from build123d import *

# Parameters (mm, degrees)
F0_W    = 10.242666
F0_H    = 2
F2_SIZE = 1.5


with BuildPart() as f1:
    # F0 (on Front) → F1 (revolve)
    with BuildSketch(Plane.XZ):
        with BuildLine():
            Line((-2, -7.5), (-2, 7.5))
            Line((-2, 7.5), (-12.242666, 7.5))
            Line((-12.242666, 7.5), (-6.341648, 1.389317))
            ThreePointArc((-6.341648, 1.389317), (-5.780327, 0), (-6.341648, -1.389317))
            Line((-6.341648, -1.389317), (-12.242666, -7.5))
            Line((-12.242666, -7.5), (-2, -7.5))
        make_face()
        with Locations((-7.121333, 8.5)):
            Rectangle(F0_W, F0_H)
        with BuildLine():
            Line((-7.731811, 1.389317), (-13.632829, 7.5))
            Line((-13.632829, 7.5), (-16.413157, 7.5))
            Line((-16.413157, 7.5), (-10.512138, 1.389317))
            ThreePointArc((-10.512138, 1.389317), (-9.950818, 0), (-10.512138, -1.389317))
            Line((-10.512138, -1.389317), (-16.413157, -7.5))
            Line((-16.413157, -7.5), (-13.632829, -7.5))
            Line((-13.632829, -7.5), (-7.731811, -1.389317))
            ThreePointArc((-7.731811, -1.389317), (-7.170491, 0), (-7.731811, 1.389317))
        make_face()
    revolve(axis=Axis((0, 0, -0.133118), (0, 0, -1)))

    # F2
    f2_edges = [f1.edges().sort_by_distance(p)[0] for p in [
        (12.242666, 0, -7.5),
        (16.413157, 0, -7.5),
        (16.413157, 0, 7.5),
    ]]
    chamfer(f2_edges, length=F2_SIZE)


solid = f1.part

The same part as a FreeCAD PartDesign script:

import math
import FreeCAD as App
import Part
import Sketcher
from FreeCAD import Vector
Q = App.Units.Quantity


def edges_at(feature, points):
    """Names of the edges that pass closest to the given points."""
    edges = feature.Shape.Edges
    near = lambda p: min(range(len(edges)), key=lambda i: edges[i].distToShape(Part.Vertex(*p))[0])
    return sorted({f"Edge{near(p) + 1}" for p in points})

doc = App.newDocument("Part")
body = doc.addObject("PartDesign::Body", "Body")
body.AllowCompound = True

# Sketch on XZ plane
sketch1 = body.newObject("Sketcher::SketchObject", "Sketch")
sketch1.AttachmentSupport = (doc.getObject("XZ_Plane"), [""])
sketch1.MapMode = "FlatFace"
sketch1.addGeometry(Part.LineSegment(Vector(-2, -7.5, 0), Vector(-2, 9.5, 0)), False)
sketch1.addGeometry(Part.LineSegment(Vector(-2, 9.5, 0), Vector(-12.2, 9.5, 0)), False)
sketch1.addGeometry(Part.LineSegment(Vector(-12.2, 9.5, 0), Vector(-12.2, 7.5, 0)), False)
sketch1.addGeometry(Part.LineSegment(Vector(-12.2, 7.5, 0), Vector(-6.3, 1.4, 0)), False)
sketch1.addGeometry(Part.ArcOfCircle(Part.Circle(Vector(-7.8, 0, 0), Vector(0, 0, 1), 2), math.radians(-44), math.radians(44)), False)
sketch1.addGeometry(Part.LineSegment(Vector(-6.3, -1.4, 0), Vector(-12.2, -7.5, 0)), False)
sketch1.addGeometry(Part.LineSegment(Vector(-12.2, -7.5, 0), Vector(-2, -7.5, 0)), False)
sketch1.addGeometry(Part.LineSegment(Vector(-7.7, 1.4, 0), Vector(-13.6, 7.5, 0)), False)
sketch1.addGeometry(Part.LineSegment(Vector(-13.6, 7.5, 0), Vector(-16.4, 7.5, 0)), False)
sketch1.addGeometry(Part.LineSegment(Vector(-16.4, 7.5, 0), Vector(-10.5, 1.4, 0)), False)
sketch1.addGeometry(Part.ArcOfCircle(Part.Circle(Vector(-12, 0, 0), Vector(0, 0, 1), 2), math.radians(-44), math.radians(44)), False)
sketch1.addGeometry(Part.LineSegment(Vector(-10.5, -1.4, 0), Vector(-16.4, -7.5, 0)), False)
sketch1.addGeometry(Part.LineSegment(Vector(-16.4, -7.5, 0), Vector(-13.6, -7.5, 0)), False)
sketch1.addGeometry(Part.LineSegment(Vector(-13.6, -7.5, 0), Vector(-7.7, -1.4, 0)), False)
sketch1.addGeometry(Part.ArcOfCircle(Part.Circle(Vector(-9.2, 0, 0), Vector(0, 0, 1), 2), math.radians(-44), math.radians(44)), False)
sketch1.addConstraint(Sketcher.Constraint("Coincident", 0, 2, 1, 1))
sketch1.addConstraint(Sketcher.Constraint("Coincident", 1, 2, 2, 1))
sketch1.addConstraint(Sketcher.Constraint("Coincident", 2, 2, 3, 1))
sketch1.addConstraint(Sketcher.Constraint("Tangent", 3, 2, 4, 2))
sketch1.addConstraint(Sketcher.Constraint("Tangent", 4, 1, 5, 1))
sketch1.addConstraint(Sketcher.Constraint("Coincident", 5, 2, 6, 1))
sketch1.addConstraint(Sketcher.Constraint("Coincident", 6, 2, 0, 1))
sketch1.addConstraint(Sketcher.Constraint("Coincident", 7, 2, 8, 1))
sketch1.addConstraint(Sketcher.Constraint("Coincident", 8, 2, 9, 1))
sketch1.addConstraint(Sketcher.Constraint("Tangent", 9, 2, 10, 2))
sketch1.addConstraint(Sketcher.Constraint("Tangent", 10, 1, 11, 1))
sketch1.addConstraint(Sketcher.Constraint("Coincident", 11, 2, 12, 1))
sketch1.addConstraint(Sketcher.Constraint("Coincident", 12, 2, 13, 1))
sketch1.addConstraint(Sketcher.Constraint("Tangent", 13, 2, 14, 1))
sketch1.addConstraint(Sketcher.Constraint("Tangent", 14, 2, 7, 1))
sketch1.addConstraint(Sketcher.Constraint("Vertical", 0))
sketch1.addConstraint(Sketcher.Constraint("Horizontal", 1))
sketch1.addConstraint(Sketcher.Constraint("Vertical", 2))
sketch1.addConstraint(Sketcher.Constraint("Horizontal", 6))
sketch1.addConstraint(Sketcher.Constraint("Horizontal", 8))
sketch1.addConstraint(Sketcher.Constraint("Horizontal", 12))
sketch1.addConstraint(Sketcher.Constraint("Equal", 10, 14))
sketch1.addConstraint(Sketcher.Constraint("Symmetric", 3, 2, 4, 1, -1))
sketch1.addConstraint(Sketcher.Constraint("Symmetric", 9, 2, 10, 1, -1))
sketch1.addConstraint(Sketcher.Constraint("Symmetric", 7, 2, 12, 2, -1))
sketch1.addConstraint(Sketcher.Constraint("PointOnObject", 14, 3, -1))
sketch1.addConstraint(Sketcher.Constraint("Parallel", 3, 7))
sketch1.addConstraint(Sketcher.Constraint("Parallel", 7, 9))
sketch1.addConstraint(Sketcher.Constraint("Horizontal", 2, 2, 7, 2))
sketch1.addConstraint(Sketcher.Constraint("Horizontal", 3, 2, 9, 2))
sketch1.addConstraint(Sketcher.Constraint("Horizontal", 6, 2, 11, 2))
sketch1.addConstraint(Sketcher.Constraint("Radius", 4, 1.999999))
sketch1.addConstraint(Sketcher.Constraint("DistanceY", 0, 1, 0, 2, 17.0))
sketch1.addConstraint(Sketcher.Constraint("DistanceY", 2, 2, 2, 1, 2.0))
sketch1.addConstraint(Sketcher.Constraint("Angle", 3, Q("-46 deg")))
sketch1.addConstraint(Sketcher.Constraint("DistanceX", 0, 2, -1, 1, 2.0))
sketch1.addConstraint(Sketcher.Constraint("DistanceX", 8, 2, 8, 1, 2.780328))
sketch1.addConstraint(Sketcher.Constraint("DistanceX", 1, 2, 1, 1, 10.242666))
sketch1.addConstraint(Sketcher.Constraint("DistanceX", 10, 3, -1, 1, 11.95082))
revolution = body.newObject("PartDesign::Revolution", "Revolution")
revolution.Profile = sketch1
revolution.ReferenceAxis = (sketch1, ["V_Axis"])
revolution.Angle = 360
doc.recompute()

chamfer = body.newObject("PartDesign::Chamfer", "Chamfer")
chamfer.Base = (revolution, edges_at(revolution, [(12.243, 0, -7.5), (16.413, 0, -7.5), (16.413, 0, 7.5)]))
chamfer.Size = 1.5

doc.recompute()
